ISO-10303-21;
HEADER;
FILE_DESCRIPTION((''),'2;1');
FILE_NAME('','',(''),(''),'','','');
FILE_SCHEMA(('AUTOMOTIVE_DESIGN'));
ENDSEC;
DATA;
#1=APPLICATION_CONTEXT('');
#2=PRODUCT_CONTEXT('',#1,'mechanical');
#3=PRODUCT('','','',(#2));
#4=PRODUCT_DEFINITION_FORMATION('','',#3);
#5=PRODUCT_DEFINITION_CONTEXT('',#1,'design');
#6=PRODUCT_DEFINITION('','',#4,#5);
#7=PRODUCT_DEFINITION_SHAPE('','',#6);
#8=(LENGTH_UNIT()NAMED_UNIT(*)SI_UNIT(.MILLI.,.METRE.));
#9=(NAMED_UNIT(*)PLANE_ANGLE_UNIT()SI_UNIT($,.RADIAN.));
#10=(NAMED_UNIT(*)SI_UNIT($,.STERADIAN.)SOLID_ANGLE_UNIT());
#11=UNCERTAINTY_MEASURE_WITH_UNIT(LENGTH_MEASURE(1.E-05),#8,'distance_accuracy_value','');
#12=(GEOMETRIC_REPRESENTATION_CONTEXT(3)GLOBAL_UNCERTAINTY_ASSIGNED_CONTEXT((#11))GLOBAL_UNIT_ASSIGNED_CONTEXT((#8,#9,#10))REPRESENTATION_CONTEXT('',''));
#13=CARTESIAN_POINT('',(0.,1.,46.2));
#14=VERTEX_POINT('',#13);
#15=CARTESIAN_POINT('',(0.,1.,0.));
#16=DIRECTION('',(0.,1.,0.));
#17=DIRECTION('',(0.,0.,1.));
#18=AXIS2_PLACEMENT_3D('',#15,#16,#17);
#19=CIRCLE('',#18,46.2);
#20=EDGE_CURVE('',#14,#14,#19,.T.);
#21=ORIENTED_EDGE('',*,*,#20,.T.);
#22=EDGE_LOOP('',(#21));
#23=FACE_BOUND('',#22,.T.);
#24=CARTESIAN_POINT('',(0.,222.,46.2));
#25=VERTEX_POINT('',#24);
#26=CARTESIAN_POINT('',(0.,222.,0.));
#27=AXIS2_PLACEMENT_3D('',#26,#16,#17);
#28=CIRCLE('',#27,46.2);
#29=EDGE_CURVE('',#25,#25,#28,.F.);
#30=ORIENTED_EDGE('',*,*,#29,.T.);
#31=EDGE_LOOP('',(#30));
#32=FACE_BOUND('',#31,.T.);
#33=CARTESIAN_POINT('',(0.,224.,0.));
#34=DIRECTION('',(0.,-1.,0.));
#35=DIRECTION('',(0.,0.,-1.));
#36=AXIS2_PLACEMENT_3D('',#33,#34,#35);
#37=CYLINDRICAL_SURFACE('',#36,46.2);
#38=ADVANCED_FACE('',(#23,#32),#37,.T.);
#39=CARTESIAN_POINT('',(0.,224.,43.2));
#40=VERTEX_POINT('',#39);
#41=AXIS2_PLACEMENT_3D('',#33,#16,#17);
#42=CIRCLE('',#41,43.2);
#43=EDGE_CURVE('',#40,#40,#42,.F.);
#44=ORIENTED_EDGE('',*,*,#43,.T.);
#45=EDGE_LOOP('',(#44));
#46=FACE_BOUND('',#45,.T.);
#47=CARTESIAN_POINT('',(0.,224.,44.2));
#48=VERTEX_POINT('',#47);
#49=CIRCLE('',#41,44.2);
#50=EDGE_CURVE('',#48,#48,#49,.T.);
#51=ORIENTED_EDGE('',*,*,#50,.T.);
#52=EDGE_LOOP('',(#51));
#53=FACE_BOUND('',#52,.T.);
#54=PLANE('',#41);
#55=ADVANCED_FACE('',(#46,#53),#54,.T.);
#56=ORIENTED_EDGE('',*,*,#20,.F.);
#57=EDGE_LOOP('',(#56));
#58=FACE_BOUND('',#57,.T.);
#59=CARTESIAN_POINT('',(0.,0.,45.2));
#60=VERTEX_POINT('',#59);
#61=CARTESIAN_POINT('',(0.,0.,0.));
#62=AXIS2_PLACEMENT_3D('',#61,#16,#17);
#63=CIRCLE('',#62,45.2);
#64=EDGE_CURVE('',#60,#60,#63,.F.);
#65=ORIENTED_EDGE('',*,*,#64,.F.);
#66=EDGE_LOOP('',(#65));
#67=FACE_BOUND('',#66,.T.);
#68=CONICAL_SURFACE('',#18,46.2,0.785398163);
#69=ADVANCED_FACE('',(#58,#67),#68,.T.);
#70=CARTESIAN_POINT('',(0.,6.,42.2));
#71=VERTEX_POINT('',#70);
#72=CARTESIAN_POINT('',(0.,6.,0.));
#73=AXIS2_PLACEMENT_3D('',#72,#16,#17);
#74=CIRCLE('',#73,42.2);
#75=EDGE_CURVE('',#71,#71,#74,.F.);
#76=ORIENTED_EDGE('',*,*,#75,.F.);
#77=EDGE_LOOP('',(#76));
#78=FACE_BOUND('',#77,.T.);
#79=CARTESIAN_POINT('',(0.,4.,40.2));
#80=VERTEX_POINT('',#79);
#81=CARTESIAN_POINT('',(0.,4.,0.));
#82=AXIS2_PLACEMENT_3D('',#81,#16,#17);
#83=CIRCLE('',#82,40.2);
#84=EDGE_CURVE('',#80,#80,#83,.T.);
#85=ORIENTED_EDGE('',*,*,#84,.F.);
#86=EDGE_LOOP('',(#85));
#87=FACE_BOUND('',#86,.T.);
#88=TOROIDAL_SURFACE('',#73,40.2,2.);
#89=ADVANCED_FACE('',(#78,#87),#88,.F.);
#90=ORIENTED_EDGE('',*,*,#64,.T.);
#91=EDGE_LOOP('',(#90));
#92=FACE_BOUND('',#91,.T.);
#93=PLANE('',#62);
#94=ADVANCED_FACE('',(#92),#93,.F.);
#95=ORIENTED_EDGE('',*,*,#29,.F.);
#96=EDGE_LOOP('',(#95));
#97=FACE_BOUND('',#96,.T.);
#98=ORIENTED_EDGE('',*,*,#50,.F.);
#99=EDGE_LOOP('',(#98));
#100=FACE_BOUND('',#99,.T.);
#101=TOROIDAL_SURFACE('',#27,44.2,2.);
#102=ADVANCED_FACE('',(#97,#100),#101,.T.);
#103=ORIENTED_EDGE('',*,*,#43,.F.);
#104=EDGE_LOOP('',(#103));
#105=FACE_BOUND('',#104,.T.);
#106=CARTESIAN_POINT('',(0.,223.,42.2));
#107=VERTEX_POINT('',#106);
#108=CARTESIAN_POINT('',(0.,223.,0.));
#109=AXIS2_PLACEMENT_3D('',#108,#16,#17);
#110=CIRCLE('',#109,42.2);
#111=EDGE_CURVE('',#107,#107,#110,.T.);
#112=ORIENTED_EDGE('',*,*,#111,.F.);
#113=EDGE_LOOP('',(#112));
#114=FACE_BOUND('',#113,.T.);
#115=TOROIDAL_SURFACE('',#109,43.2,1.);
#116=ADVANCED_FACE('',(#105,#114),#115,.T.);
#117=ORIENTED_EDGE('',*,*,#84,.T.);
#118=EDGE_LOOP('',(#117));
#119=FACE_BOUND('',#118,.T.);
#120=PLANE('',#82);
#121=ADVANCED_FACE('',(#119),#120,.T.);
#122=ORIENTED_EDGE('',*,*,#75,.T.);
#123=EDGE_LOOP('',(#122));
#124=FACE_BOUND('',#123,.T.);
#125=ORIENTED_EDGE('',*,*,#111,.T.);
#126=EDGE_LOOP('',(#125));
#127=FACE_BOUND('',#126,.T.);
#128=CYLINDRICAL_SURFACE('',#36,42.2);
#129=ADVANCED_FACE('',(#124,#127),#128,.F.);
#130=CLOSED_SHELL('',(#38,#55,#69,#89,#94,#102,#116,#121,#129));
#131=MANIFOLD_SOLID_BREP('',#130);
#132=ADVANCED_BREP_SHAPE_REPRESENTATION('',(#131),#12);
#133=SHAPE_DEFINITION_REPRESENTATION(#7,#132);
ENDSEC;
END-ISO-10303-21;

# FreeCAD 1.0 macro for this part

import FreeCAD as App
import Part
import Sketcher
from FreeCAD import Vector
Q = App.Units.Quantity


def edges_at(feature, points):
    """Names of the edges that pass closest to the given points."""
    edges = feature.Shape.Edges
    near = lambda p: min(range(len(edges)), key=lambda i: edges[i].distToShape(Part.Vertex(*p))[0])
    return sorted({f"Edge{near(p) + 1}" for p in points})


def faces_at(feature, points):
    """Names of the faces that lie closest to the given points."""
    faces = feature.Shape.Faces
    near = lambda p: min(range(len(faces)), key=lambda i: faces[i].distToShape(Part.Vertex(*p))[0])
    return sorted({f"Face{near(p) + 1}" for p in points})

doc = App.newDocument("Part")
params = doc.addObject("Spreadsheet::Sheet", "Params")
for row, (alias, value) in enumerate([
    ("sketch1_diameter", "92.4 mm"),
    ("pad1_length", "224 mm"),
    ("thickness_wall", "4 mm"),
    ("fillet_radius", "2 mm"),
    ("fillet2_radius", "2 mm"),
    ("fillet3_radius", "1 mm"),
    ("chamfer_size", "1 mm"),
], start=1):
    params.set(f"A{row}", alias)
    params.set(f"B{row}", "=" + value)
    params.setAlias(f"B{row}", alias)

body = doc.addObject("PartDesign::Body", "Body")

# Sketch on XZ plane
sketch1 = body.newObject("Sketcher::SketchObject", "Sketch")
sketch1.AttachmentSupport = (doc.getObject("XZ_Plane"), [""])
sketch1.MapMode = "FlatFace"
sketch1.addGeometry(Part.Circle(Vector(0, 0, 0), Vector(0, 0, 1), 46.2), False)
sketch1.addConstraint([
    Sketcher.Constraint("Coincident", 0, 3, -1, 1),
    Sketcher.Constraint("Diameter", 0, Q("92.4 mm")),
])
sketch1.setExpression("Constraints[1]", "Params.sketch1_diameter")
pad1 = body.newObject("PartDesign::Pad", "Pad")
pad1.Profile = sketch1
pad1.setExpression("Length", "Params.pad1_length")
pad1.Reversed = True
doc.recompute()

thickness = body.newObject("PartDesign::Thickness", "Thickness")
thickness.Base = (pad1, faces_at(pad1, [(0, 224, 0)]))
thickness.setExpression("Value", "Params.thickness_wall")
thickness.Reversed = True
thickness.Join = "Intersection"
doc.recompute()

fillet = body.newObject("PartDesign::Fillet", "Fillet")
fillet.Base = (thickness, edges_at(thickness, [(0, 4, -42.2)]))
fillet.setExpression("Radius", "Params.fillet_radius")
doc.recompute()

fillet2 = body.newObject("PartDesign::Fillet", "Fillet001")
fillet2.Base = (fillet, edges_at(fillet, [(0, 224, -46.2)]))
fillet2.setExpression("Radius", "Params.fillet2_radius")
doc.recompute()

fillet3 = body.newObject("PartDesign::Fillet", "Fillet002")
fillet3.Base = (fillet2, edges_at(fillet2, [(0, 224, -42.2)]))
fillet3.setExpression("Radius", "Params.fillet3_radius")
doc.recompute()

chamfer = body.newObject("PartDesign::Chamfer", "Chamfer")
chamfer.Base = (fillet3, edges_at(fillet3, [(0, 0, -46.2)]))
chamfer.setExpression("Size", "Params.chamfer_size")

doc.recompute()
